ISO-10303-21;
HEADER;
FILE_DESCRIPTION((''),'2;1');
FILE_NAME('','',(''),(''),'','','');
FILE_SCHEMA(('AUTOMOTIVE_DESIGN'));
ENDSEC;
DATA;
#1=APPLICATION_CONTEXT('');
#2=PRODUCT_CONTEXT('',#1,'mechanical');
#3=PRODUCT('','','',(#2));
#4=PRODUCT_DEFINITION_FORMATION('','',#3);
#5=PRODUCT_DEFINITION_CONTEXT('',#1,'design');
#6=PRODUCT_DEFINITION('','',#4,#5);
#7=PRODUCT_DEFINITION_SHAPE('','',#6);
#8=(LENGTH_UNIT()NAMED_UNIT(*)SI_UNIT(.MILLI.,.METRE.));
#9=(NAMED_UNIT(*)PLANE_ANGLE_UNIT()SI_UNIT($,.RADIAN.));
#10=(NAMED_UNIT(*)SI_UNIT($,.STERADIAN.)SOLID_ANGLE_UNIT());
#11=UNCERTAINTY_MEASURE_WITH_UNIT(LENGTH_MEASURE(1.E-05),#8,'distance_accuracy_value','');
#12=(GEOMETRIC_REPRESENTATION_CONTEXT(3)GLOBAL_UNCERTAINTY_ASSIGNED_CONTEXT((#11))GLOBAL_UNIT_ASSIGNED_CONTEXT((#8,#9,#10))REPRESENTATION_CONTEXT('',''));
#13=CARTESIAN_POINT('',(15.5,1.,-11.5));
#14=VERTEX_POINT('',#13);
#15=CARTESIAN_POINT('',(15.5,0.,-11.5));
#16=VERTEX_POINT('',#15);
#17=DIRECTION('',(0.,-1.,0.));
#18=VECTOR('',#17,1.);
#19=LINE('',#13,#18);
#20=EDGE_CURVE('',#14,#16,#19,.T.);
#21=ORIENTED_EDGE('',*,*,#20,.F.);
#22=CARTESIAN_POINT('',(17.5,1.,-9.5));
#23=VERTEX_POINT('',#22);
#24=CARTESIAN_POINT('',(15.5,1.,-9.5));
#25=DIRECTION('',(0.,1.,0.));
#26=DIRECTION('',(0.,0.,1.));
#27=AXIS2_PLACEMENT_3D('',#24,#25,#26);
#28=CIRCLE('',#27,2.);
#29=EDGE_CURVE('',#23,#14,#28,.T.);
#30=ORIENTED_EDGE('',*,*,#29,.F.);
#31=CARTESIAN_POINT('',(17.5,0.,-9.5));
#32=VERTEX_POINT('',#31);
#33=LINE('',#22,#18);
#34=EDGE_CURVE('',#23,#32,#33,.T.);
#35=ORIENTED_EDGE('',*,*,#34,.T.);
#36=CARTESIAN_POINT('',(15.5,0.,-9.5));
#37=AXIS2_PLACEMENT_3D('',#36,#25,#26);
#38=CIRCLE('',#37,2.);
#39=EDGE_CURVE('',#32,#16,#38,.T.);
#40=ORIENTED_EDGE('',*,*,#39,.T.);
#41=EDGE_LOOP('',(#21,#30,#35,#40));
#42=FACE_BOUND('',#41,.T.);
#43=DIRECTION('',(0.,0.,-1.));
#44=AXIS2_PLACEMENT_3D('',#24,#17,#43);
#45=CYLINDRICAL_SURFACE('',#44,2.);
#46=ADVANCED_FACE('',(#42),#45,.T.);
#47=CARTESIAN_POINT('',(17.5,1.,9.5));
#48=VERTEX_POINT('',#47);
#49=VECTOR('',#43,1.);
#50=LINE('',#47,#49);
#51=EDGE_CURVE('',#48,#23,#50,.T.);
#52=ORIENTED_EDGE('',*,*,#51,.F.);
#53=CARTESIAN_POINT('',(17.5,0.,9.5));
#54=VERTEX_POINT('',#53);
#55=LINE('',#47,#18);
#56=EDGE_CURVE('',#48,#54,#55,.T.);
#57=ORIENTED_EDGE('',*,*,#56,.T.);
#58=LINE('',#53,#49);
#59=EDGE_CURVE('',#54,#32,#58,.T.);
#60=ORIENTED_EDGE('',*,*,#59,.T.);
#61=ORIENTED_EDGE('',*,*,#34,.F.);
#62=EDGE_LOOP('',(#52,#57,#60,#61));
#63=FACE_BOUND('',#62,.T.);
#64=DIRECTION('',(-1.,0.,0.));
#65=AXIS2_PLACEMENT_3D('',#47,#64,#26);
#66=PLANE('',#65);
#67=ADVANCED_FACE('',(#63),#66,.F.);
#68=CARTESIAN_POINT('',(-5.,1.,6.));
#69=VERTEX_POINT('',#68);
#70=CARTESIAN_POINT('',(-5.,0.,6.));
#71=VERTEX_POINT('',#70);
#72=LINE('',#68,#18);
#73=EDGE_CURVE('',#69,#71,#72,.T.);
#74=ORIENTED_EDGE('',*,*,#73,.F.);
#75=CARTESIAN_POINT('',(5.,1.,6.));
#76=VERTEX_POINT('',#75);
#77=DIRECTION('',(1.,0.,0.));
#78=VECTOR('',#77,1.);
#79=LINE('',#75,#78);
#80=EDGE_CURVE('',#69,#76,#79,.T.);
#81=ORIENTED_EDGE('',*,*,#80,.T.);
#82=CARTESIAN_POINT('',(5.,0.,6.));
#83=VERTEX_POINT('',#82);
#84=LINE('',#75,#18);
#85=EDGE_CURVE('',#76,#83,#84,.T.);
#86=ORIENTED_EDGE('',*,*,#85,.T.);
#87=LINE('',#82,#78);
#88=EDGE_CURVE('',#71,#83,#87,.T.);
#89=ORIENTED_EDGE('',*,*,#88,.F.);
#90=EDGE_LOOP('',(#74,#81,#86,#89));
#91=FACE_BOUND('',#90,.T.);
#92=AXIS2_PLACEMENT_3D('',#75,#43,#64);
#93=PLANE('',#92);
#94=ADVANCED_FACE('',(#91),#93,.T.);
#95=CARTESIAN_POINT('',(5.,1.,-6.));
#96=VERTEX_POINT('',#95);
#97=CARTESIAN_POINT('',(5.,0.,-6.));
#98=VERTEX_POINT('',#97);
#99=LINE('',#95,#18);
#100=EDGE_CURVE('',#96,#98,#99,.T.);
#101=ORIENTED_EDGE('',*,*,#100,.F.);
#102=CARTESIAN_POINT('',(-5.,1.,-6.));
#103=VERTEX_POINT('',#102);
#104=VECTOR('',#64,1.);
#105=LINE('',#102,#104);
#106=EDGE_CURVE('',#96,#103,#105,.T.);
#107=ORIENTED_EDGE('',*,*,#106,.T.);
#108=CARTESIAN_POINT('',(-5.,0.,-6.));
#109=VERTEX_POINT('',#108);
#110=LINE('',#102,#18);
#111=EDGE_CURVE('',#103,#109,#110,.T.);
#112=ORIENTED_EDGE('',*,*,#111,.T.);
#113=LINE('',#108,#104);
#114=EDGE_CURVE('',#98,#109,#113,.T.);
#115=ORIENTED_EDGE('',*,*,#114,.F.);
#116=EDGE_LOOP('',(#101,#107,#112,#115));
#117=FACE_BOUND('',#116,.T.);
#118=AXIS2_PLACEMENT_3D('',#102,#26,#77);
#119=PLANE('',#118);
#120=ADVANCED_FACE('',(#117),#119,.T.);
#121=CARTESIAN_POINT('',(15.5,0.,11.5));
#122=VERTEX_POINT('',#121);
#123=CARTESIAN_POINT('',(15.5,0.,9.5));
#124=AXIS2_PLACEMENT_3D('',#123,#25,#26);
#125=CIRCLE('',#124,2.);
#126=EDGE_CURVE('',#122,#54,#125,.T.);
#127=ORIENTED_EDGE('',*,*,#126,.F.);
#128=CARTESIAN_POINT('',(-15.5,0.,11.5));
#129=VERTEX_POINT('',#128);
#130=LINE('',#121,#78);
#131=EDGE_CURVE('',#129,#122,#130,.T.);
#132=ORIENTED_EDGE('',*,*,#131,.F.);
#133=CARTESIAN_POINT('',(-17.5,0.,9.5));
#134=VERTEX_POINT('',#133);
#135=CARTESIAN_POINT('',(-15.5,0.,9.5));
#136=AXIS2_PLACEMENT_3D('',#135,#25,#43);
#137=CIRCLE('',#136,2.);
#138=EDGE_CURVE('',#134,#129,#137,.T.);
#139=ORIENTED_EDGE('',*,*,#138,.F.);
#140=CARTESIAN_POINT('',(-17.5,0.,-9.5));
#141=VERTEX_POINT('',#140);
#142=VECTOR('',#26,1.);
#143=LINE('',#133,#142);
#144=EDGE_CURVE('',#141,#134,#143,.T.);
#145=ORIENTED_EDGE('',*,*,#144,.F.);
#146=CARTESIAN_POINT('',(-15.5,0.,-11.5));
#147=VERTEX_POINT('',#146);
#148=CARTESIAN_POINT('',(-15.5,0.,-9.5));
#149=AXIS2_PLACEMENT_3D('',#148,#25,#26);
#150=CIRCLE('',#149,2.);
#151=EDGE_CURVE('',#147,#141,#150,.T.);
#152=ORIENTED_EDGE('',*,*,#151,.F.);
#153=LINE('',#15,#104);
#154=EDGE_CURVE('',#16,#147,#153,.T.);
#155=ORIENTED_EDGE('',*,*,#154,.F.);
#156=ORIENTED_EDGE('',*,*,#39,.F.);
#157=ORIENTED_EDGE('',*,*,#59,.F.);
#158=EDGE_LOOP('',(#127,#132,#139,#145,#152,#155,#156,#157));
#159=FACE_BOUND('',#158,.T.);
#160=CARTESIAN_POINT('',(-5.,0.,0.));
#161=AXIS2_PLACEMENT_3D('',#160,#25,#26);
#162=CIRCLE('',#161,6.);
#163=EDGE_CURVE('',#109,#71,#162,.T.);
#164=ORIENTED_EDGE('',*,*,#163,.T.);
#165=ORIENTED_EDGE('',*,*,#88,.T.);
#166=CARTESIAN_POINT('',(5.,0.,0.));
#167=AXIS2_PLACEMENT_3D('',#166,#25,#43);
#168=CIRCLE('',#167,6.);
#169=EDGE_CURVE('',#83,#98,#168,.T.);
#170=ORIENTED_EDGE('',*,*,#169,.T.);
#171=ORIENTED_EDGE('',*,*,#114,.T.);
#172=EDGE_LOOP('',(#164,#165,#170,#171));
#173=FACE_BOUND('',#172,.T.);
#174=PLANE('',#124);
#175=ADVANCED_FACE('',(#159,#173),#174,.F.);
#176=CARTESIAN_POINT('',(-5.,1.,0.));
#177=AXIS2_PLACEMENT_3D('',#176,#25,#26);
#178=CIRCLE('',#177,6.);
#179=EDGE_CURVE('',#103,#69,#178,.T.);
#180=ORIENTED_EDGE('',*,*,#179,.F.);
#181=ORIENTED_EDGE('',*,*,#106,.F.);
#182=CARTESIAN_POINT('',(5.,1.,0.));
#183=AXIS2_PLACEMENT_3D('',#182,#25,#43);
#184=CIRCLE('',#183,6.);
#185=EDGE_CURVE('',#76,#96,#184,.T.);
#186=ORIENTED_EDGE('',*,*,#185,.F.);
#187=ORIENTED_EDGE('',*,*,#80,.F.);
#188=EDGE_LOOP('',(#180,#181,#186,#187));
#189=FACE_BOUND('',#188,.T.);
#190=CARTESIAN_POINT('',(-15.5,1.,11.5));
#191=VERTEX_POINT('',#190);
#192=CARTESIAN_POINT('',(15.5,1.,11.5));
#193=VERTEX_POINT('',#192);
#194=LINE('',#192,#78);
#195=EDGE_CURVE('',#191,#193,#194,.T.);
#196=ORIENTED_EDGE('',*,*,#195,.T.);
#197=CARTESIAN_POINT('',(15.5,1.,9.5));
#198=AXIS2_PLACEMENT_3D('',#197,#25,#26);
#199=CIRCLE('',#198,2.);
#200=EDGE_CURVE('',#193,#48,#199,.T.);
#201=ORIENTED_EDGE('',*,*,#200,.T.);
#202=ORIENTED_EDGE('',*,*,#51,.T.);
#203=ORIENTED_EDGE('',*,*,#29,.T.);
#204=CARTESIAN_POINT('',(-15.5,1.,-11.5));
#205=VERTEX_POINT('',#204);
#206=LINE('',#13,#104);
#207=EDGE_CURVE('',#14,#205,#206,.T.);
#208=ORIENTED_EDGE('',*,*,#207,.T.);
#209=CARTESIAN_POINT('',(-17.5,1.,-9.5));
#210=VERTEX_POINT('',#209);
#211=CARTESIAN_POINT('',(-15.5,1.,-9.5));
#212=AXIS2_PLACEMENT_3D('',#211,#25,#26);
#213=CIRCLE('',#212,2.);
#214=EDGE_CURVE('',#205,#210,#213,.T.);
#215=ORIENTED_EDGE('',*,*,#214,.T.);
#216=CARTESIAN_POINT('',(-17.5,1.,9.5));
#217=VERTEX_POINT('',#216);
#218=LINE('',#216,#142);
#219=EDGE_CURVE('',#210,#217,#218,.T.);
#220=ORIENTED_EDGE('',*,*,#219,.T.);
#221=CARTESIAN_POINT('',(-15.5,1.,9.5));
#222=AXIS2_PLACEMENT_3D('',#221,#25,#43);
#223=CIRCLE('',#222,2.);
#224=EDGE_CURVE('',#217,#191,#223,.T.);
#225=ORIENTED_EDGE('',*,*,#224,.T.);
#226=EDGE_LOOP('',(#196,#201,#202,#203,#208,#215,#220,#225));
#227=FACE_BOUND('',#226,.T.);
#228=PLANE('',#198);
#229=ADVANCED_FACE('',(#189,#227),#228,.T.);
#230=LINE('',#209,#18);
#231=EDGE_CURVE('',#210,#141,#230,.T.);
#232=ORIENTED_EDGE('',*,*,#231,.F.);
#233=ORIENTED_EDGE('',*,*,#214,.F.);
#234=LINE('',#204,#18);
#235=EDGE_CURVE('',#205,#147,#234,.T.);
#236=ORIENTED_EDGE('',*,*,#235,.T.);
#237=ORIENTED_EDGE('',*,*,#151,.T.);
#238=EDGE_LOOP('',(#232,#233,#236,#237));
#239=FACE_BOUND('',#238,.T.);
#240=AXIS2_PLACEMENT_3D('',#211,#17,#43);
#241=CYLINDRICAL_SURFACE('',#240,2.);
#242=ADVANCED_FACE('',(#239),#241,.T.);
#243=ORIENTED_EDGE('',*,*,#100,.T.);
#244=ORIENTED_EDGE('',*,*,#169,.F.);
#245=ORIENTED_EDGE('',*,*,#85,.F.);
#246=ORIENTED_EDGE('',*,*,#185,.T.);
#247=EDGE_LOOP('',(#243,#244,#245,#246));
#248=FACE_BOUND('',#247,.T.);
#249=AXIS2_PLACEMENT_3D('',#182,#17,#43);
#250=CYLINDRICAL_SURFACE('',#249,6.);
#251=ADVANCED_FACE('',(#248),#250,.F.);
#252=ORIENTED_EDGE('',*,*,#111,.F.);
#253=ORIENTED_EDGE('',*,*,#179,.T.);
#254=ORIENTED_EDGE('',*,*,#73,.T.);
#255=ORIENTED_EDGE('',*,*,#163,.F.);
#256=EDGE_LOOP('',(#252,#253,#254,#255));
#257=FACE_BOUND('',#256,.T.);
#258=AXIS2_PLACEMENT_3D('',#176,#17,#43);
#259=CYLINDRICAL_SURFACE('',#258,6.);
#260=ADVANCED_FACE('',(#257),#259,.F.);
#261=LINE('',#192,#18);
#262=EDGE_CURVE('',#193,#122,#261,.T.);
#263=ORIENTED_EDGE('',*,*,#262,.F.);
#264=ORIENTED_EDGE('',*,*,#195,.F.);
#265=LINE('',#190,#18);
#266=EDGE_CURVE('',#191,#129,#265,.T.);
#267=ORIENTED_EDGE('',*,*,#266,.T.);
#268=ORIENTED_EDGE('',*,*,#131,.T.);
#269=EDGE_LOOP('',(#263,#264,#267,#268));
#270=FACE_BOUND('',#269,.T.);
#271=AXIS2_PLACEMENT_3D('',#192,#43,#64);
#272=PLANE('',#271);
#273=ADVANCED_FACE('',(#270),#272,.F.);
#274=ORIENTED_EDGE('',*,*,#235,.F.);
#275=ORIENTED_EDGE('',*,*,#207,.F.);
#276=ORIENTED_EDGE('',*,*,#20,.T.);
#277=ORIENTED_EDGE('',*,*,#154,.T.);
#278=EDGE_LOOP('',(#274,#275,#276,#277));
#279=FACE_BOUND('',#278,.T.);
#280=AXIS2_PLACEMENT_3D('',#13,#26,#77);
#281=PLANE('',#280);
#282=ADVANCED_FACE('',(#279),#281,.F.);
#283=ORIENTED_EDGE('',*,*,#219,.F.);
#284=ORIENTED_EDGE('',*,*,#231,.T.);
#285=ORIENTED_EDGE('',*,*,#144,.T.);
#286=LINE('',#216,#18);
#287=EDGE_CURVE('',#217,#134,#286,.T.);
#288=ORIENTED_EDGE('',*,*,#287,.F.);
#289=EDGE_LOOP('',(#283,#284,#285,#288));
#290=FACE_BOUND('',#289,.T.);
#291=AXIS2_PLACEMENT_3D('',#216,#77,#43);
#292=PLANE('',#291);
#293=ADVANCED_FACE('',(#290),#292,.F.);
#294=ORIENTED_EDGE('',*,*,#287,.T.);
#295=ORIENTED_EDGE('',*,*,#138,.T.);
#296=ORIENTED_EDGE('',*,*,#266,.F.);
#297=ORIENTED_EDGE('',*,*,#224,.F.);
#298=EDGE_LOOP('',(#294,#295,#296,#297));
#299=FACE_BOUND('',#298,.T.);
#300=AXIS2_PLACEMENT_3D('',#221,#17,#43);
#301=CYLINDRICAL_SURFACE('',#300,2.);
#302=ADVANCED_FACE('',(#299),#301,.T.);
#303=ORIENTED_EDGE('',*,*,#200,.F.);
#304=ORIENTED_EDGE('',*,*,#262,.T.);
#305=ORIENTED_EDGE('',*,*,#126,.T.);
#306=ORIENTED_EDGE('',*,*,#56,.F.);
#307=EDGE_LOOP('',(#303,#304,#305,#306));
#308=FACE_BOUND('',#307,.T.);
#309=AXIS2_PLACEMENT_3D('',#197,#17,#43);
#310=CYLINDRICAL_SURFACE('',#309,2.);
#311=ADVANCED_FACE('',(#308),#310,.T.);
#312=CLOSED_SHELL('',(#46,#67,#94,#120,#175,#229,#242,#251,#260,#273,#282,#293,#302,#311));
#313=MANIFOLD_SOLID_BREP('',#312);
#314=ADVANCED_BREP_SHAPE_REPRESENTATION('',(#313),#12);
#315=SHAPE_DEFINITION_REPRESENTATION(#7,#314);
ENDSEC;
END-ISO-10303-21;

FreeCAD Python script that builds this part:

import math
import FreeCAD as App
import Part
import Sketcher

V = App.Vector

doc = App.newDocument("Part")
body = doc.addObject("PartDesign::Body", "Body")

sketch1 = body.newObject("Sketcher::SketchObject", "Sketch")
sketch1.AttachmentSupport = (doc.getObject("XZ_Plane"), [""])
sketch1.MapMode = "FlatFace"
sketch1.addGeometry([
    Part.LineSegment(V(-15.5, 11.5, 0), V(15.5, 11.5, 0)),
    Part.ArcOfCircle(Part.Circle(V(15.5, 9.5, 0), V(0, 0, 1), 2), math.radians(0), math.radians(90)),
    Part.LineSegment(V(17.5, 9.5, 0), V(17.5, -9.5, 0)),
    Part.ArcOfCircle(Part.Circle(V(15.5, -9.5, 0), V(0, 0, 1), 2), math.radians(-90), math.radians(0)),
    Part.LineSegment(V(15.5, -11.5, 0), V(-15.5, -11.5, 0)),
    Part.ArcOfCircle(Part.Circle(V(-15.5, -9.5, 0), V(0, 0, 1), 2), math.radians(-180), math.radians(-90)),
    Part.LineSegment(V(-17.5, -9.5, 0), V(-17.5, 9.5, 0)),
    Part.ArcOfCircle(Part.Circle(V(-15.5, 9.5, 0), V(0, 0, 1), 2), math.radians(90), math.radians(180)),
    Part.LineSegment(V(-5, -6, 0), V(5, -6, 0)),
    Part.ArcOfCircle(Part.Circle(V(5, 0, 0), V(0, 0, 1), 6), math.radians(-90), math.radians(90)),
    Part.LineSegment(V(5, 6, 0), V(-5, 6, 0)),
    Part.ArcOfCircle(Part.Circle(V(-5, 0, 0), V(0, 0, 1), 6), math.radians(90), math.radians(270)),
], False)
sketch1.addConstraint([
    Sketcher.Constraint("Tangent", 0, 2, 1, 2),
    Sketcher.Constraint("Tangent", 1, 1, 2, 1),
    Sketcher.Constraint("Tangent", 2, 2, 3, 2),
    Sketcher.Constraint("Tangent", 3, 1, 4, 1),
    Sketcher.Constraint("Tangent", 4, 2, 5, 2),
    Sketcher.Constraint("Tangent", 5, 1, 6, 1),
    Sketcher.Constraint("Tangent", 6, 2, 7, 2),
    Sketcher.Constraint("Tangent", 7, 1, 0, 1),
    Sketcher.Constraint("Tangent", 8, 2, 9, 1),
    Sketcher.Constraint("Tangent", 9, 2, 10, 1),
    Sketcher.Constraint("Tangent", 10, 2, 11, 1),
    Sketcher.Constraint("Tangent", 11, 2, 8, 1),
    Sketcher.Constraint("Horizontal", 0),
    Sketcher.Constraint("Vertical", 2),
    Sketcher.Constraint("Horizontal", 4),
    Sketcher.Constraint("Vertical", 6),
    Sketcher.Constraint("Horizontal", 8),
    Sketcher.Constraint("Horizontal", 10),
    Sketcher.Constraint("Equal", 1, 3),
    Sketcher.Constraint("Equal", 3, 5),
    Sketcher.Constraint("Equal", 5, 7),
    Sketcher.Constraint("Symmetric", 1, 3, 5, 3, -1, 1),
    Sketcher.Constraint("Symmetric", 9, 3, 11, 3, -1, 1),
    Sketcher.Constraint("Radius", 1, 2.0),
    Sketcher.Constraint("Radius", 9, 6.0),
    Sketcher.Constraint("DistanceX", 0, 1, 0, 2, 31.0),
    Sketcher.Constraint("DistanceX", 8, 1, 8, 2, 10.0),
    Sketcher.Constraint("DistanceY", 2, 2, 2, 1, 19.0),
])
pad1 = body.newObject("PartDesign::Pad", "Pad")
pad1.Profile = sketch1
pad1.Length = 1
pad1.Reversed = True

doc.recompute()
